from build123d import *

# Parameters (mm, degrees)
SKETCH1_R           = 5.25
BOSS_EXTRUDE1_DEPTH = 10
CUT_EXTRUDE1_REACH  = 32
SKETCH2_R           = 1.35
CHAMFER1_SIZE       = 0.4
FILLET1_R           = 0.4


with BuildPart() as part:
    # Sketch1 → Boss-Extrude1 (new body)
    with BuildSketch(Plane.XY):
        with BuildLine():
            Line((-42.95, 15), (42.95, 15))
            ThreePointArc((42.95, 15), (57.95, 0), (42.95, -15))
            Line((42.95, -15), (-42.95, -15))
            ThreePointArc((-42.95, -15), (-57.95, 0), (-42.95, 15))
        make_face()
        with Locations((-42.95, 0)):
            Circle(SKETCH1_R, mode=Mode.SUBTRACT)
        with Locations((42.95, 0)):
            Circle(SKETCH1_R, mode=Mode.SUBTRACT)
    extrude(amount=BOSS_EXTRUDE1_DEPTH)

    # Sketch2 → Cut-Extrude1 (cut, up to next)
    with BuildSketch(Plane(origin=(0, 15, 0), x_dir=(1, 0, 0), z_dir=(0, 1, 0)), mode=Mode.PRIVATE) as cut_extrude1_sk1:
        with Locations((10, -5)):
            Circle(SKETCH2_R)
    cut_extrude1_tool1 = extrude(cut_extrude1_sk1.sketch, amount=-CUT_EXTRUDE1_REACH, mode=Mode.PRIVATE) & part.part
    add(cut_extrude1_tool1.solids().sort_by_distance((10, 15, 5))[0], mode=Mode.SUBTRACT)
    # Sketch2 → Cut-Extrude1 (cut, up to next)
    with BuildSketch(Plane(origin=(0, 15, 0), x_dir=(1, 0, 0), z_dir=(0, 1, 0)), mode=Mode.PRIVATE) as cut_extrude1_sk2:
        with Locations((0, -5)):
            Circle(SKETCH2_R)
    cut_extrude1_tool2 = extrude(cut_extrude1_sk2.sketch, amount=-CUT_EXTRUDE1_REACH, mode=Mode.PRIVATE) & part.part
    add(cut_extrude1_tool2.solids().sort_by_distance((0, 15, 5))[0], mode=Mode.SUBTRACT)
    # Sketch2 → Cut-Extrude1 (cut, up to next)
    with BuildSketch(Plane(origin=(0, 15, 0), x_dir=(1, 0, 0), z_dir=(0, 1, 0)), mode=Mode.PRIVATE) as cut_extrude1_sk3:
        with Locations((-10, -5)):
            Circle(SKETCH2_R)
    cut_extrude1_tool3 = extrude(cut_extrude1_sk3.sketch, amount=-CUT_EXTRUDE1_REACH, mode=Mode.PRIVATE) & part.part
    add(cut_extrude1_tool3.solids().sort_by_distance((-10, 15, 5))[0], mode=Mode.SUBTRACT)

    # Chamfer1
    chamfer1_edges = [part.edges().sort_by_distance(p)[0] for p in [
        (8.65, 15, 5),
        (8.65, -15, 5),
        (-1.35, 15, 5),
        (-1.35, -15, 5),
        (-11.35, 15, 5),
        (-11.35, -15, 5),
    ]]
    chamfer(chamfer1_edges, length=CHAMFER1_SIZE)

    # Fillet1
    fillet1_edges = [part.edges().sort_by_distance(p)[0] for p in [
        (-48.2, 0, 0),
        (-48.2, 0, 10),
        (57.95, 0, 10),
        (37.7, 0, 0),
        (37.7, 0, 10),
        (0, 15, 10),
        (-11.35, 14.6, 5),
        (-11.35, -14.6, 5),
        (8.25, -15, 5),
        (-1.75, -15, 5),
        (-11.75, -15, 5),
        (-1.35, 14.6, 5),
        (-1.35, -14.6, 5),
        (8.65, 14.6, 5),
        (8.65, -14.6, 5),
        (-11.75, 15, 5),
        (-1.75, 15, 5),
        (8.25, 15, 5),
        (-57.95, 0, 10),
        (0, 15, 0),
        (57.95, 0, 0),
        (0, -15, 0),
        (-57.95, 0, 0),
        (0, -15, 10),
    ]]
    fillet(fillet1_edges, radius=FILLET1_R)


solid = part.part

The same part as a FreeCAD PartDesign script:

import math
import FreeCAD as App
import Part
import Sketcher
from FreeCAD import Vector
Q = App.Units.Quantity


def edges_at(feature, points):
    """Names of the edges that pass closest to the given points."""
    edges = feature.Shape.Edges
    near = lambda p: min(range(len(edges)), key=lambda i: edges[i].distToShape(Part.Vertex(*p))[0])
    return sorted({f"Edge{near(p) + 1}" for p in points})

doc = App.newDocument("Part")
body = doc.addObject("PartDesign::Body", "Body")

# Sketch on XY plane
sketch1 = doc.addObject("Sketcher::SketchObject", "Sketch")
body.addObject(sketch1)
sketch1.AttachmentSupport = (doc.XY_Plane, [""])
sketch1.MapMode = "FlatFace"
sketch1.addGeometry([
    Part.LineSegment(Vector(42.95, 15, 0), Vector(-42.95, 15, 0)),  # 0
    Part.ArcOfCircle(Part.Circle(Vector(-42.95, 0, 0), Vector(0, 0, 1), 15), math.radians(90), math.radians(270)),  # 1
    Part.LineSegment(Vector(-42.95, -15, 0), Vector(42.95, -15, 0)),  # 2
    Part.ArcOfCircle(Part.Circle(Vector(42.95, 0, 0), Vector(0, 0, 1), 15), math.radians(-90), math.radians(90)),  # 3
    Part.Circle(Vector(42.95, 0, 0), Vector(0, 0, 1), 5.25),  # 4
    Part.Circle(Vector(-42.95, 0, 0), Vector(0, 0, 1), 5.25),  # 5
], False)
sketch1.addConstraint([
    Sketcher.Constraint("Tangent", 0, 2, 1, 1),
    Sketcher.Constraint("Tangent", 1, 2, 2, 1),
    Sketcher.Constraint("Tangent", 2, 2, 3, 1),
    Sketcher.Constraint("Tangent", 3, 2, 0, 1),
    Sketcher.Constraint("Horizontal", 0),
    Sketcher.Constraint("Horizontal", 2),
    Sketcher.Constraint("Coincident", 4, 3, 3, 3),
    Sketcher.Constraint("Coincident", 5, 3, 1, 3),
    Sketcher.Constraint("Equal", 4, 5),
    Sketcher.Constraint("Symmetric", 1, 3, 3, 3, -1, 1),
    Sketcher.Constraint("Radius", 1, Q("15 mm")),
    Sketcher.Constraint("Diameter", 4, Q("10.5 mm")),
    Sketcher.Constraint("DistanceX", 0, 2, 0, 1, Q("85.9 mm")),
])
pad1 = doc.addObject("PartDesign::Pad", "Pad")
body.addObject(pad1)
pad1.Profile = sketch1
pad1.Length = 10

# Sketch on XZ plane
sketch2 = doc.addObject("Sketcher::SketchObject", "Sketch001")
body.addObject(sketch2)
sketch2.AttachmentSupport = (doc.XZ_Plane, [""])
sketch2.MapMode = "FlatFace"
sketch2.AttachmentOffset = App.Placement(Vector(0, 0, -15), App.Rotation())
sketch2.addGeometry(Part.Circle(Vector(10, 5, 0), Vector(0, 0, 1), 1.35), False)
sketch2.addConstraint([
    Sketcher.Constraint("Diameter", 0, Q("2.7 mm")),
    Sketcher.Constraint("DistanceX", -1, 1, 0, 3, Q("10 mm")),
    Sketcher.Constraint("DistanceY", -1, 1, 0, 3, Q("5 mm")),
])
pocket1 = doc.addObject("PartDesign::Pocket", "Pocket")
body.addObject(pocket1)
pocket1.Profile = sketch2
pocket1.Type = "UpToFirst"
pocket1.Reversed = True

# Sketch on XZ plane
sketch3 = doc.addObject("Sketcher::SketchObject", "Sketch002")
body.addObject(sketch3)
sketch3.AttachmentSupport = (doc.XZ_Plane, [""])
sketch3.MapMode = "FlatFace"
sketch3.AttachmentOffset = App.Placement(Vector(0, 0, -15), App.Rotation())
sketch3.addGeometry(Part.Circle(Vector(0, 5, 0), Vector(0, 0, 1), 1.35), False)
sketch3.addConstraint([
    Sketcher.Constraint("PointOnObject", 0, 3, -2),
    Sketcher.Constraint("Diameter", 0, Q("2.7 mm")),
    Sketcher.Constraint("DistanceY", -1, 1, 0, 3, Q("5 mm")),
])
pocket2 = doc.addObject("PartDesign::Pocket", "Pocket001")
body.addObject(pocket2)
pocket2.Profile = sketch3
pocket2.Type = "UpToFirst"
pocket2.Reversed = True

# Sketch on XZ plane
sketch4 = doc.addObject("Sketcher::SketchObject", "Sketch003")
body.addObject(sketch4)
sketch4.AttachmentSupport = (doc.XZ_Plane, [""])
sketch4.MapMode = "FlatFace"
sketch4.AttachmentOffset = App.Placement(Vector(0, 0, -15), App.Rotation())
sketch4.addGeometry(Part.Circle(Vector(-10, 5, 0), Vector(0, 0, 1), 1.35), False)
sketch4.addConstraint([
    Sketcher.Constraint("Diameter", 0, Q("2.7 mm")),
    Sketcher.Constraint("DistanceX", 0, 3, -1, 1, Q("10 mm")),
    Sketcher.Constraint("DistanceY", -1, 1, 0, 3, Q("5 mm")),
])
pocket3 = doc.addObject("PartDesign::Pocket", "Pocket002")
body.addObject(pocket3)
pocket3.Profile = sketch4
pocket3.Type = "UpToFirst"
pocket3.Reversed = True
doc.recompute()

chamfer = doc.addObject("PartDesign::Chamfer", "Chamfer")
body.addObject(chamfer)
chamfer.Base = (pocket3, edges_at(pocket3, [
    (8.65, 15, 5),
    (8.65, -15, 5),
    (-1.35, 15, 5),
    (-1.35, -15, 5),
    (-11.35, 15, 5),
    (-11.35, -15, 5),
]))
chamfer.Size = 0.4
doc.recompute()

fillet = doc.addObject("PartDesign::Fillet", "Fillet")
body.addObject(fillet)
fillet.Base = (chamfer, edges_at(chamfer, [
    (-48.2, 0, 0),
    (-48.2, 0, 10),
    (57.95, 0, 10),
    (37.7, 0, 0),
    (37.7, 0, 10),
    (0, 15, 10),
    (-11.35, 14.6, 5),
    (-11.35, -14.6, 5),
    (8.25, -15, 5),
    (-1.75, -15, 5),
    (-11.75, -15, 5),
    (-1.35, 14.6, 5),
    (-1.35, -14.6, 5),
    (8.65, 14.6, 5),
    (8.65, -14.6, 5),
    (-11.75, 15, 5),
    (-1.75, 15, 5),
    (8.25, 15, 5),
    (-57.95, 0, 10),
    (0, 15, 0),
    (57.95, 0, 0),
    (0, -15, 0),
    (-57.95, 0, 0),
    (0, -15, 10),
]))
fillet.Radius = 0.4

doc.recompute()
